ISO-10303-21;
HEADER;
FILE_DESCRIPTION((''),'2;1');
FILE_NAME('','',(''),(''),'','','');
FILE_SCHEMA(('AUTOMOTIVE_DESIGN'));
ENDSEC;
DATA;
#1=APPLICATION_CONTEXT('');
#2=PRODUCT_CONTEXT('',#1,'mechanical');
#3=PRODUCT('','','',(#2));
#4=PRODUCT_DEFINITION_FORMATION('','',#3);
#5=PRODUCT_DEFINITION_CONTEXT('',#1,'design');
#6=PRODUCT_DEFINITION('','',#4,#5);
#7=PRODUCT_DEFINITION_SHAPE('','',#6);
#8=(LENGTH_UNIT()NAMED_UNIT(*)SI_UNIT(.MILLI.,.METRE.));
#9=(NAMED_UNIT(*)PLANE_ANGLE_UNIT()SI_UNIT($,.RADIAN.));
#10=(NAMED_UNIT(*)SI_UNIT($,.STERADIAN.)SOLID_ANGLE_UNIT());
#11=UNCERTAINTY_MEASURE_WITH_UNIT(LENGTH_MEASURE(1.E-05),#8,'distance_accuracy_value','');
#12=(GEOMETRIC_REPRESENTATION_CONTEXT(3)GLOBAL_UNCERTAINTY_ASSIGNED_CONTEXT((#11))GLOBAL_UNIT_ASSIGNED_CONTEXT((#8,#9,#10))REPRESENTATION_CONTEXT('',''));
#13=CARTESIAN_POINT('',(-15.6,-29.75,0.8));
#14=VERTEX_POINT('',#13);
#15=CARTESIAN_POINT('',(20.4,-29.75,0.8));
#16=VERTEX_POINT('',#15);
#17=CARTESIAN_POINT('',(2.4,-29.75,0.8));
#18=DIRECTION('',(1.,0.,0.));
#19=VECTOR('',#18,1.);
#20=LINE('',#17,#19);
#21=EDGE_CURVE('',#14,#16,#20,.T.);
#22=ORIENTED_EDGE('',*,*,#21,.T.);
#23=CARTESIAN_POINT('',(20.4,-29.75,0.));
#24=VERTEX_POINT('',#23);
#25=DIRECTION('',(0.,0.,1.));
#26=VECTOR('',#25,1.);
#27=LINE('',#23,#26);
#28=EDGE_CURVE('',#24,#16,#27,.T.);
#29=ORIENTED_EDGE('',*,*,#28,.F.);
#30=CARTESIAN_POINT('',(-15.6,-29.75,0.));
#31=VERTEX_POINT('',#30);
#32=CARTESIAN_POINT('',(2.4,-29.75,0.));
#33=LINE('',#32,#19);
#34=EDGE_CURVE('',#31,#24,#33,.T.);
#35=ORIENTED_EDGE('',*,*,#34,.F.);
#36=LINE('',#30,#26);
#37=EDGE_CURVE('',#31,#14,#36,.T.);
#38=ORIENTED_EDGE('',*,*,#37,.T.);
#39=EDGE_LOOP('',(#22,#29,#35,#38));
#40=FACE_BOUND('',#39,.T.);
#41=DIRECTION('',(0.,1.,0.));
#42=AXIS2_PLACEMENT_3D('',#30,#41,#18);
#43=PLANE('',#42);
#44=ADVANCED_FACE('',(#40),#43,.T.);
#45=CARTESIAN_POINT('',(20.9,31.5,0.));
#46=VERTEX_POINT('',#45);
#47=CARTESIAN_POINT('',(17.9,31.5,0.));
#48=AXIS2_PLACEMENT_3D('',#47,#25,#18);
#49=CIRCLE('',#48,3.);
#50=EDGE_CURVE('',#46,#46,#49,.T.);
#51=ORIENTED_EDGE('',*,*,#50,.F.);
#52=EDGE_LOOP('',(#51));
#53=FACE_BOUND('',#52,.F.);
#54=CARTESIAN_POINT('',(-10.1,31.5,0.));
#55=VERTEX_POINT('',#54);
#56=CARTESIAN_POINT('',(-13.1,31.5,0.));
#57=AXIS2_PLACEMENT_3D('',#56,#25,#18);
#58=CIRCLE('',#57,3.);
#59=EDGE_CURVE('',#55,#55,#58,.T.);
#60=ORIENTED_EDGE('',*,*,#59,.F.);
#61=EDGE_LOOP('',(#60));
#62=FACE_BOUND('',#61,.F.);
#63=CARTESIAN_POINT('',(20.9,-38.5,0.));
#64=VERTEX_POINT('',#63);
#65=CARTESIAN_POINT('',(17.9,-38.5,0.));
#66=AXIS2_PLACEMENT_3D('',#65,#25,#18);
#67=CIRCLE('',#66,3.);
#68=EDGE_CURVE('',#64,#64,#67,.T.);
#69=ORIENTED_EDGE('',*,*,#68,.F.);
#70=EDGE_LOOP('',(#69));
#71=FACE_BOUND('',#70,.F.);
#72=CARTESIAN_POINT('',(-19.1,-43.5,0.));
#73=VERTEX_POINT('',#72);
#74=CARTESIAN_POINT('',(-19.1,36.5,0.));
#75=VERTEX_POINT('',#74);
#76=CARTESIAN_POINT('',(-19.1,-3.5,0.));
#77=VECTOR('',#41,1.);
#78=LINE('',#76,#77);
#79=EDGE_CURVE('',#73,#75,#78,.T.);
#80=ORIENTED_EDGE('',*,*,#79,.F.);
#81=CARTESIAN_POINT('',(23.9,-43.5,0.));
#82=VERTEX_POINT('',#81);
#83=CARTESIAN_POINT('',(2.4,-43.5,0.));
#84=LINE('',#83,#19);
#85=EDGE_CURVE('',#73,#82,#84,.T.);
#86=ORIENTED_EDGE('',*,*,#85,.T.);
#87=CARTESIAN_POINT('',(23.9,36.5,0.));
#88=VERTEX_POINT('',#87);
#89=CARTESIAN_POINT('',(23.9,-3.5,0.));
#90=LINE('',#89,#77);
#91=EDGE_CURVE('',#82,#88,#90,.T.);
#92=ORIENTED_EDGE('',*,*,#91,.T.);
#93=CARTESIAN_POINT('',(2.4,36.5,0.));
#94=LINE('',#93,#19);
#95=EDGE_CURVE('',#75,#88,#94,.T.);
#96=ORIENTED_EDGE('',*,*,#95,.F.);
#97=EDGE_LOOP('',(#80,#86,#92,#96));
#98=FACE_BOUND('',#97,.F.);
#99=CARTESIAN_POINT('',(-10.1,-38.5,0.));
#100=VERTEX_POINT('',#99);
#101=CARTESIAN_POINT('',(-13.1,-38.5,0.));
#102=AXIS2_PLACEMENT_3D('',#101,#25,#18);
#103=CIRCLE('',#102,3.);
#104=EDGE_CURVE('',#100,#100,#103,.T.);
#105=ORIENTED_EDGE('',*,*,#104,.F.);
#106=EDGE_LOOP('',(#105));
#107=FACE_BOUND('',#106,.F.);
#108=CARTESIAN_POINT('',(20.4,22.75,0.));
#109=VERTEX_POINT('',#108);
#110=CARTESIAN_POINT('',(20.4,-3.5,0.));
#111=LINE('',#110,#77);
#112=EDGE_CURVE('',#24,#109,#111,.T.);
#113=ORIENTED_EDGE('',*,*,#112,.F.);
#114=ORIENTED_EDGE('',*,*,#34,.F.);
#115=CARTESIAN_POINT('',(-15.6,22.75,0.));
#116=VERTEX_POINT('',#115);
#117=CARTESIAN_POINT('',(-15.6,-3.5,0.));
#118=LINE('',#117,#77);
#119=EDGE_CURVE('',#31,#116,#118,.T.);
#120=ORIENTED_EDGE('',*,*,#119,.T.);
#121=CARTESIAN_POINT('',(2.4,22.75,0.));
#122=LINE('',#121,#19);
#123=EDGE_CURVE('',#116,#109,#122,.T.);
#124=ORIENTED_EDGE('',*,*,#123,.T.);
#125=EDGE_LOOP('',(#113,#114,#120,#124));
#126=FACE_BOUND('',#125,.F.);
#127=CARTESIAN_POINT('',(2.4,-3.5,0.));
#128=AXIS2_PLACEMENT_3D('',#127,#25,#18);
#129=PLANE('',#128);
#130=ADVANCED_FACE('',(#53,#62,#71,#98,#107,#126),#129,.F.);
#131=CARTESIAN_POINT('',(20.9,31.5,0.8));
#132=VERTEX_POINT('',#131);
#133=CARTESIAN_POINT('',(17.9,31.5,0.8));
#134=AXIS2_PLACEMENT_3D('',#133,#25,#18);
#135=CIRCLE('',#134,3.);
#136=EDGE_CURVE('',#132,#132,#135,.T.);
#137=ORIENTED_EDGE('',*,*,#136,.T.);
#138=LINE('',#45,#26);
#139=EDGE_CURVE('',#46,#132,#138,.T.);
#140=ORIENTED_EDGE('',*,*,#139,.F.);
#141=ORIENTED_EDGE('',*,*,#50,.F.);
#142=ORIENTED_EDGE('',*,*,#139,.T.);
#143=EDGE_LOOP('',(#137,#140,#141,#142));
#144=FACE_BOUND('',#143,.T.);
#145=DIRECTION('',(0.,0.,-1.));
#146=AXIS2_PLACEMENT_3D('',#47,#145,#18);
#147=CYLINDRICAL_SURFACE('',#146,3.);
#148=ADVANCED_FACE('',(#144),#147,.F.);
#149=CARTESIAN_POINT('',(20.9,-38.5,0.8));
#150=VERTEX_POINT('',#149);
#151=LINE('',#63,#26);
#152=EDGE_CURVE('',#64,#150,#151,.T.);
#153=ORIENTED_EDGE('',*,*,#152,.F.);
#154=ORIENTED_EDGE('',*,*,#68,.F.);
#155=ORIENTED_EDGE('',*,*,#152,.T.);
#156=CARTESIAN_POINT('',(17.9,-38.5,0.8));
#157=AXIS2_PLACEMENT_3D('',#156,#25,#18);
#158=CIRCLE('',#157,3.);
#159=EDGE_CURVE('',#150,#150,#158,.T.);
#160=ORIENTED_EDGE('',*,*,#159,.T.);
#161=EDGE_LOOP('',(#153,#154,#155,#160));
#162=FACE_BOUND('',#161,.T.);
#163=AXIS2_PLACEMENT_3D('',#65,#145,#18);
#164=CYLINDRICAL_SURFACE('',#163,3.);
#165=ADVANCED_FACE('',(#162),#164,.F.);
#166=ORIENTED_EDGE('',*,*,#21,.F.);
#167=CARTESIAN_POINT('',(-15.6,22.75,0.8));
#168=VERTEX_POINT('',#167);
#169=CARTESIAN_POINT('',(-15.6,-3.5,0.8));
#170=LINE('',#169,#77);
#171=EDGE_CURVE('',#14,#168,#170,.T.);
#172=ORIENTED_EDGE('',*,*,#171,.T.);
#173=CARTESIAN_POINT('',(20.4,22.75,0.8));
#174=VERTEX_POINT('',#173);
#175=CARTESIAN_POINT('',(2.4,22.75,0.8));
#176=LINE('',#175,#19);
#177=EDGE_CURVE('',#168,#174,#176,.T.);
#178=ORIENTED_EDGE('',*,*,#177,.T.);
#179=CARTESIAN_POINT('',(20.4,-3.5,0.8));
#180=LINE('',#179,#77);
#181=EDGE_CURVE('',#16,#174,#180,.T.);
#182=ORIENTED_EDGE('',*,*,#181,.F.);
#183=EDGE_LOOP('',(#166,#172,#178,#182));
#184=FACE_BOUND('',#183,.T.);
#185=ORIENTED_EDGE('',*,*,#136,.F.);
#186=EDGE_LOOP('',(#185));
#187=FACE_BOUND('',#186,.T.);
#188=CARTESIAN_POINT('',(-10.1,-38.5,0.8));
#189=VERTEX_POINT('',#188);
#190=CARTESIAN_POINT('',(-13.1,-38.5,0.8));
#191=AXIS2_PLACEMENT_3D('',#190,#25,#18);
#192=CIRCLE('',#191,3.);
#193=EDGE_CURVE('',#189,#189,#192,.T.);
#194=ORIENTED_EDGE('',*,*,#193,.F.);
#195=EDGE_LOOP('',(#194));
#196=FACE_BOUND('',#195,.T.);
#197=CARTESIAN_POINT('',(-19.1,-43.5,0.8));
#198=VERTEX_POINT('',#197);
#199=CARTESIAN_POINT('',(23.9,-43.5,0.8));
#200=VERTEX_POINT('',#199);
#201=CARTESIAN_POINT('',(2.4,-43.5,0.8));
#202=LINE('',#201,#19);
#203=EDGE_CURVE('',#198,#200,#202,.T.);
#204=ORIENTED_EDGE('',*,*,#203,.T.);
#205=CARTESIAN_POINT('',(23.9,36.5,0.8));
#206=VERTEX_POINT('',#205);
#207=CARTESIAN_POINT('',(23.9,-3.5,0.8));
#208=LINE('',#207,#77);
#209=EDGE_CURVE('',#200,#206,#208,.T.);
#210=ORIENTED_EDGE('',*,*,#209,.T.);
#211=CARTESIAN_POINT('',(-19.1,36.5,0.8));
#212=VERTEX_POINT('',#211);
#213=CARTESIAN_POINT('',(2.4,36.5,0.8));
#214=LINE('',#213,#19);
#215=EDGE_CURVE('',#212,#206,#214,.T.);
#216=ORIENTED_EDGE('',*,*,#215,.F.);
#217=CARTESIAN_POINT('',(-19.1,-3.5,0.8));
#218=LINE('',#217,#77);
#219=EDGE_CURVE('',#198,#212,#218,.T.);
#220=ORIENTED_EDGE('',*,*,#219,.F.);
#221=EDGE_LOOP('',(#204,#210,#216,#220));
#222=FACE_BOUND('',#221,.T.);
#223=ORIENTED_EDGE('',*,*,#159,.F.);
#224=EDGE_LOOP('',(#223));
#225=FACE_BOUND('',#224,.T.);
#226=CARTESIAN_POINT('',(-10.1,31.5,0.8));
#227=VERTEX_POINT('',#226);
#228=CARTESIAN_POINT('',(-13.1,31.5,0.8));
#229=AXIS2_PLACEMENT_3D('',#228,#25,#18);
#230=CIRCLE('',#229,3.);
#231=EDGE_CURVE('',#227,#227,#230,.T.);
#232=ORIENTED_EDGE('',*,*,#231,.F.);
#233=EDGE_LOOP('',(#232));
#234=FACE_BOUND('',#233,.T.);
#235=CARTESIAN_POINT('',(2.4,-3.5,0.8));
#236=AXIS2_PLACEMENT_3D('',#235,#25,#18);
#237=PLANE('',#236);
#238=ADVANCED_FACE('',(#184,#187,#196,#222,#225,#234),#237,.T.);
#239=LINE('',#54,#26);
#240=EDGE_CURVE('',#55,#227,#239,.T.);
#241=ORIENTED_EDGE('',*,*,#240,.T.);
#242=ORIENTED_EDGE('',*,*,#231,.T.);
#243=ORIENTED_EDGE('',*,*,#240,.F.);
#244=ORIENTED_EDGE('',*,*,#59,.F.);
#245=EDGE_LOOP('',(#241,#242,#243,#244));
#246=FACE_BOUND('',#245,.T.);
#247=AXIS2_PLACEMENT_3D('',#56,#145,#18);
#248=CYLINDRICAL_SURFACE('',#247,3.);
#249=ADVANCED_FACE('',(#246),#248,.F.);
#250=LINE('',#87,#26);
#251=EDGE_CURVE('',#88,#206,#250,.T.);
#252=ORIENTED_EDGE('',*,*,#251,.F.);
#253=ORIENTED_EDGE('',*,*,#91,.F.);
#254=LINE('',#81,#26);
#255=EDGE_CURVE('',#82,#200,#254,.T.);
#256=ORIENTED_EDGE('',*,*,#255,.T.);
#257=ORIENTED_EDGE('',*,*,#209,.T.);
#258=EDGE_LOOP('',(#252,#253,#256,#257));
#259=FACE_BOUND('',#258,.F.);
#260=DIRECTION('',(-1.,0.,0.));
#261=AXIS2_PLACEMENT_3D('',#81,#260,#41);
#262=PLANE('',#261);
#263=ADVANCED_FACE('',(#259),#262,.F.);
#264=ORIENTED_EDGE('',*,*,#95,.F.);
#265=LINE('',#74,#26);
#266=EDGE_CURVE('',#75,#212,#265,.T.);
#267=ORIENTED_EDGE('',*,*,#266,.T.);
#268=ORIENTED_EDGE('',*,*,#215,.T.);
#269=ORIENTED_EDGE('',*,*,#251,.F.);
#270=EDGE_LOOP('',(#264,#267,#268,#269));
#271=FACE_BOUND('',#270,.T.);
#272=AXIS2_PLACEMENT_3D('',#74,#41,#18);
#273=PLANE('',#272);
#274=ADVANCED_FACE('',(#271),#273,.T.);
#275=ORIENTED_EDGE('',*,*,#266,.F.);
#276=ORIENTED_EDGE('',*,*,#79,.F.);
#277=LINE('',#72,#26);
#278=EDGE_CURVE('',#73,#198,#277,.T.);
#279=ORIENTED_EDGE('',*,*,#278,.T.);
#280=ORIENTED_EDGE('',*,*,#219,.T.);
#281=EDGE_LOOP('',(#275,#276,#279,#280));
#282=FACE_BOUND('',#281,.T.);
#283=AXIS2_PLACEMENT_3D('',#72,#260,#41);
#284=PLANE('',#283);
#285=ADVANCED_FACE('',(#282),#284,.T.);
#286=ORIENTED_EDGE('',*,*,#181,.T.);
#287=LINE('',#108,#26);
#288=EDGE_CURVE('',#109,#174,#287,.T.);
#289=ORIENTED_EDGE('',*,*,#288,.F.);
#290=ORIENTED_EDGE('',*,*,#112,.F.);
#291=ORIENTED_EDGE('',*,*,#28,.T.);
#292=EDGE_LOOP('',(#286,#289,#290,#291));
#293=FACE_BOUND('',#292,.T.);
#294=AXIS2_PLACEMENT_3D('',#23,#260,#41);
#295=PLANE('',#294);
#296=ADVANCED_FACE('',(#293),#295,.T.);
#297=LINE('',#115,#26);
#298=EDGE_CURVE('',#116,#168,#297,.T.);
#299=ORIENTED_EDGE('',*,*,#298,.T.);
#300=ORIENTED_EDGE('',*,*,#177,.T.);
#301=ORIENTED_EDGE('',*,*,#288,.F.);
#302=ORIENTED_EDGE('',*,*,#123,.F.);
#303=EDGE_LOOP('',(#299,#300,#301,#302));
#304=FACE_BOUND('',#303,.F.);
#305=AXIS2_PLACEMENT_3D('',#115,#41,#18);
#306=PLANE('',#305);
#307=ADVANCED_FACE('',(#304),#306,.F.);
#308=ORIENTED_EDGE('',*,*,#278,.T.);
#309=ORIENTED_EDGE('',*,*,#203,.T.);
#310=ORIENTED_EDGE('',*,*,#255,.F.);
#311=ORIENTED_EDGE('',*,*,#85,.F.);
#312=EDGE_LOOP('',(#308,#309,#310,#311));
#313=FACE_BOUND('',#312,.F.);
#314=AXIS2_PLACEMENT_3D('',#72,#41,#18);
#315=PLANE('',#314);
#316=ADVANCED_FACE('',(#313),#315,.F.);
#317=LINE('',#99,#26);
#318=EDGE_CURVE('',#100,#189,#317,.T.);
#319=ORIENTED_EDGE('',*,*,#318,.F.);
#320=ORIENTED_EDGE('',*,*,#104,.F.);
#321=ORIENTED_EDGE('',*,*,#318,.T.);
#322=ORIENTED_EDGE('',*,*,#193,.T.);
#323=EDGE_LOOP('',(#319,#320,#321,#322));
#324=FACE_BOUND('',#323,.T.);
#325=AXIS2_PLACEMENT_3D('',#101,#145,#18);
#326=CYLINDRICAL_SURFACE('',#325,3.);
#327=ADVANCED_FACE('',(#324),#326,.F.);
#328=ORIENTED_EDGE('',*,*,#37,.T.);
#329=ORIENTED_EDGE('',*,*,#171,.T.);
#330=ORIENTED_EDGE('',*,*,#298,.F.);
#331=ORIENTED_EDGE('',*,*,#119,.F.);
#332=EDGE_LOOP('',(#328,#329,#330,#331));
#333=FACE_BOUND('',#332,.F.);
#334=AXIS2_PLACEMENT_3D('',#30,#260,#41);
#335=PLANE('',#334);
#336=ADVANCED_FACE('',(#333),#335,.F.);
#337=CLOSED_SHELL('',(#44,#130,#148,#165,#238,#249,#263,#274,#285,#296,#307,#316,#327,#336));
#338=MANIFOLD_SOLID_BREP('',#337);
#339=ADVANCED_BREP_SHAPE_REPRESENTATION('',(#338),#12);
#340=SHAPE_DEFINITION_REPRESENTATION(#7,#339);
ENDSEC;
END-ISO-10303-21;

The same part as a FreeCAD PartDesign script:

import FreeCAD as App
import Part
import Sketcher
from FreeCAD import Vector


def add_polygon(sketch, points):
    """Adds a closed chain of lines whose ends are joined by coincident constraints."""
    first, n = sketch.GeometryCount, len(points)
    for a, b in zip(points, points[1:] + points[:1]):
        sketch.addGeometry(Part.LineSegment(App.Vector(*a, 0), App.Vector(*b, 0)), False)
    for i in range(n):
        sketch.addConstraint(Sketcher.Constraint("Coincident", first + i, 2, first + (i + 1) % n, 1))

doc = App.newDocument("Part")
body = doc.addObject("PartDesign::Body", "Body")

sketch1 = body.newObject("Sketcher::SketchObject", "Sketch")
sketch1.AttachmentSupport = (doc.getObject("XY_Plane"), [""])
sketch1.MapMode = "FlatFace"
add_polygon(sketch1, [(-19.1, 36.5), (-19.1, -43.5), (23.9, -43.5), (23.9, 36.5)])
sketch1.addGeometry(Part.Circle(Vector(-13.1, -38.5, 0), Vector(0, 0, 1), 3), False)
sketch1.addGeometry(Part.Circle(Vector(17.9, -38.5, 0), Vector(0, 0, 1), 3), False)
sketch1.addGeometry(Part.Circle(Vector(-13.1, 31.5, 0), Vector(0, 0, 1), 3), False)
add_polygon(sketch1, [(20.4, -29.8), (-15.6, -29.8), (-15.6, 22.8), (20.4, 22.8)])
sketch1.addGeometry(Part.Circle(Vector(17.9, 31.5, 0), Vector(0, 0, 1), 3), False)
sketch1.addConstraint(Sketcher.Constraint("Vertical", 0))
sketch1.addConstraint(Sketcher.Constraint("Horizontal", 1))
sketch1.addConstraint(Sketcher.Constraint("Vertical", 2))
sketch1.addConstraint(Sketcher.Constraint("Horizontal", 3))
sketch1.addConstraint(Sketcher.Constraint("Horizontal", 7))
sketch1.addConstraint(Sketcher.Constraint("Vertical", 8))
sketch1.addConstraint(Sketcher.Constraint("Horizontal", 9))
sketch1.addConstraint(Sketcher.Constraint("Vertical", 10))
sketch1.addConstraint(Sketcher.Constraint("Equal", 4, 5))
sketch1.addConstraint(Sketcher.Constraint("Equal", 5, 6))
sketch1.addConstraint(Sketcher.Constraint("Equal", 6, 11))
sketch1.addConstraint(Sketcher.Constraint("Horizontal", 4, 3, 5, 3))
sketch1.addConstraint(Sketcher.Constraint("Horizontal", 6, 3, 11, 3))
sketch1.addConstraint(Sketcher.Constraint("Vertical", 4, 3, 6, 3))
sketch1.addConstraint(Sketcher.Constraint("Vertical", 5, 3, 11, 3))
sketch1.addConstraint(Sketcher.Constraint("Diameter", 4, 6.0))
sketch1.addConstraint(Sketcher.Constraint("DistanceX", 1, 1, 1, 2, 43.0))
sketch1.addConstraint(Sketcher.Constraint("DistanceX", 7, 2, 7, 1, 36.0))
sketch1.addConstraint(Sketcher.Constraint("DistanceY", 0, 2, 0, 1, 80.0))
sketch1.addConstraint(Sketcher.Constraint("DistanceY", 8, 1, 8, 2, 52.5))
sketch1.addConstraint(Sketcher.Constraint("DistanceX", 4, 3, 5, 3, 31.0))
sketch1.addConstraint(Sketcher.Constraint("DistanceY", 4, 3, 6, 3, 70.0))
sketch1.addConstraint(Sketcher.Constraint("DistanceX", 0, 2, 4, 3, 6.0))
sketch1.addConstraint(Sketcher.Constraint("DistanceY", 0, 2, 4, 3, 5.0))
sketch1.addConstraint(Sketcher.Constraint("DistanceX", 4, 3, -1, 1, 13.1))
sketch1.addConstraint(Sketcher.Constraint("DistanceY", 4, 3, -1, 1, 38.5))
sketch1.addConstraint(Sketcher.Constraint("DistanceX", 7, 2, -1, 1, 15.6))
sketch1.addConstraint(Sketcher.Constraint("DistanceY", 7, 2, -1, 1, 29.75))
pad1 = body.newObject("PartDesign::Pad", "Pad")
pad1.Profile = sketch1
pad1.Length = 0.8

doc.recompute()
